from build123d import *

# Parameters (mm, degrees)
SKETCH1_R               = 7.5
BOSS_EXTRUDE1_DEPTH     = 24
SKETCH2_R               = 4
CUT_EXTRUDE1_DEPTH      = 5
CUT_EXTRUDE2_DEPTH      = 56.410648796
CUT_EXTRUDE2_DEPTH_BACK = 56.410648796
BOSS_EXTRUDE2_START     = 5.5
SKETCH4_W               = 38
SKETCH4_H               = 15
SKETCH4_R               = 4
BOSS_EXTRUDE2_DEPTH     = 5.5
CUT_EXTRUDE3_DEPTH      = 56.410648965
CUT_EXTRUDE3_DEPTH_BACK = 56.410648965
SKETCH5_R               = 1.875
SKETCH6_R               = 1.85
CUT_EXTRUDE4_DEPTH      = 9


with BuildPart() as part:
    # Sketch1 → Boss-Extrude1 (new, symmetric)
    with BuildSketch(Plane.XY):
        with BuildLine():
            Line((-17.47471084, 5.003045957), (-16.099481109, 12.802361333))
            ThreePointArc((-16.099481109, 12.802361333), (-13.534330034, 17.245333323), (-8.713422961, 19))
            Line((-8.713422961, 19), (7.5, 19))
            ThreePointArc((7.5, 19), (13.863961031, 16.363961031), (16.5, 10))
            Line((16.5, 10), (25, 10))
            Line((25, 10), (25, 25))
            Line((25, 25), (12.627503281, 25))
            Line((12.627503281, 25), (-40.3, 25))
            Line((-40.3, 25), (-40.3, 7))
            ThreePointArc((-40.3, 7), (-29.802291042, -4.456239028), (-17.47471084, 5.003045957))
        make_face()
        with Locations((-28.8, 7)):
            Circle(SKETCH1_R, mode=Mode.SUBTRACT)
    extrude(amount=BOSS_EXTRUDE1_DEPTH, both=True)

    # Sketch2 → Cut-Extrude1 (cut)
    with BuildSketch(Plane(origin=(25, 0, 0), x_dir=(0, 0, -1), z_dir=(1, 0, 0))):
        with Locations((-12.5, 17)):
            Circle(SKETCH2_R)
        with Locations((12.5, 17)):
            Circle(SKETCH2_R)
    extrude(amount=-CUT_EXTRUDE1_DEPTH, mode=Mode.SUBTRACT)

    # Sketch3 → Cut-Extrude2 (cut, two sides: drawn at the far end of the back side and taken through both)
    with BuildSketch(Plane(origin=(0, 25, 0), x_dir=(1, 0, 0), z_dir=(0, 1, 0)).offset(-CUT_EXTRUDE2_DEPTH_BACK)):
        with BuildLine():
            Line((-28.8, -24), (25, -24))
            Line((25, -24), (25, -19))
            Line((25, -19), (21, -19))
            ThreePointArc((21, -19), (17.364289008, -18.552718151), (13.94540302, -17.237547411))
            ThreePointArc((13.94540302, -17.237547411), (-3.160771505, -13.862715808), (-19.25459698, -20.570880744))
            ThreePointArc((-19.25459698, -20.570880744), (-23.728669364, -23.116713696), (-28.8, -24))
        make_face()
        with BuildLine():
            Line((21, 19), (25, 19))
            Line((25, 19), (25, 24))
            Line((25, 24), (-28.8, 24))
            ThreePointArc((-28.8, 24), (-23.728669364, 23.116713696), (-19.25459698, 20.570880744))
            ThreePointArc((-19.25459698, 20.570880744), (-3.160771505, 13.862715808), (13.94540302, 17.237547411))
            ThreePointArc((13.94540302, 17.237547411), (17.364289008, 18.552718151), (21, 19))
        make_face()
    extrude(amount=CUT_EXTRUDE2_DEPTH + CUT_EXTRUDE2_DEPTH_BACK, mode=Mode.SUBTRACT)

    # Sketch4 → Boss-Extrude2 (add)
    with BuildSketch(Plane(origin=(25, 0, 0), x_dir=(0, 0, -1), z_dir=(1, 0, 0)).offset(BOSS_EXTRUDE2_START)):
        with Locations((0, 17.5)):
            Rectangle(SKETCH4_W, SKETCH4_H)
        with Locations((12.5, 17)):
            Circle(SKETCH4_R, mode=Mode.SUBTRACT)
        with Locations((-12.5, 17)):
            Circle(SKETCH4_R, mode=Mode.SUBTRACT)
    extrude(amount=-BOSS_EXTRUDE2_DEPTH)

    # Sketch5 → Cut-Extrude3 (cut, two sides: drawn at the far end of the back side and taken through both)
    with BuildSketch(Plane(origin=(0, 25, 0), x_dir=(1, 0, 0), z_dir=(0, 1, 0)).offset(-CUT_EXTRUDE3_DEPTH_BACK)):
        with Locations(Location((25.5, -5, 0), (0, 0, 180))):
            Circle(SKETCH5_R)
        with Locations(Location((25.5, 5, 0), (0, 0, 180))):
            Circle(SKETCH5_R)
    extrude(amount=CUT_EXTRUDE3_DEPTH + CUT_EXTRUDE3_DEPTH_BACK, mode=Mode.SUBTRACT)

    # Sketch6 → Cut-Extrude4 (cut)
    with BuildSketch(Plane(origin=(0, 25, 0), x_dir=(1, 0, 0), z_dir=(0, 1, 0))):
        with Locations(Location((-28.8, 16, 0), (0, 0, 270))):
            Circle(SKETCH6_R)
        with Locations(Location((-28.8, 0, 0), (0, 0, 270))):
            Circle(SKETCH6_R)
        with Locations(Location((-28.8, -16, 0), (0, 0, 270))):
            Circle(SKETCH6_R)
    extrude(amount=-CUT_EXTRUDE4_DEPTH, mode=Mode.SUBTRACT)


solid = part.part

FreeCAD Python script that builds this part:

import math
import FreeCAD as App
import Part
import Sketcher

V = App.Vector
Q = App.Units.Quantity

doc = App.newDocument("Part")
body = doc.addObject("PartDesign::Body", "Body")

# Sketch on XY plane
sketch1 = doc.addObject("Sketcher::SketchObject", "Sketch")
body.addObject(sketch1)
sketch1.AttachmentSupport = (doc.XY_Plane, [""])
sketch1.MapMode = "FlatFace"
sketch1.addGeometry([
    Part.LineSegment(V(-17, 5, 0), V(-16, 13, 0)),  # 0
    Part.ArcOfCircle(Part.Circle(V(-9, 11, 0), V(0, 0, 1), 8), math.radians(90), math.radians(170)),  # 1
    Part.LineSegment(V(-9, 19, 0), V(8, 19, 0)),  # 2
    Part.ArcOfCircle(Part.Circle(V(8, 10, 0), V(0, 0, 1), 9), math.radians(0), math.radians(90)),  # 3
    Part.LineSegment(V(16, 10, 0), V(25, 10, 0)),  # 4
    Part.LineSegment(V(25, 10, 0), V(25, 25, 0)),  # 5
    Part.LineSegment(V(25, 25, 0), V(-40, 25, 0)),  # 6
    Part.LineSegment(V(-40, 25, 0), V(-40, 7, 0)),  # 7
    Part.ArcOfCircle(Part.Circle(V(-29, 7, 0), V(0, 0, 1), 12), math.radians(180), math.radians(350)),  # 8
    Part.Circle(V(-29, 7, 0), V(0, 0, 1), 8),  # 9
], False)
sketch1.addConstraint([
    Sketcher.Constraint("Tangent", 0, 2, 1, 2),
    Sketcher.Constraint("Tangent", 1, 1, 2, 1),
    Sketcher.Constraint("Tangent", 2, 2, 3, 2),
    Sketcher.Constraint("Coincident", 3, 1, 4, 1),
    Sketcher.Constraint("Coincident", 4, 2, 5, 1),
    Sketcher.Constraint("Coincident", 5, 2, 6, 1),
    Sketcher.Constraint("Coincident", 6, 2, 7, 1),
    Sketcher.Constraint("Tangent", 7, 2, 8, 1),
    Sketcher.Constraint("Tangent", 8, 2, 0, 1),
    Sketcher.Constraint("Horizontal", 2),
    Sketcher.Constraint("Horizontal", 4),
    Sketcher.Constraint("Vertical", 5),
    Sketcher.Constraint("Horizontal", 6),
    Sketcher.Constraint("Vertical", 7),
    Sketcher.Constraint("Coincident", 9, 3, 8, 3),
    Sketcher.Constraint("Equal", 1, 9),
    Sketcher.Constraint("Diameter", 9, Q("15 mm")),
    Sketcher.Constraint("Radius", 3, Q("9 mm")),
    Sketcher.Constraint("Radius", 8, Q("11.5 mm")),
    Sketcher.Constraint("DistanceY", 5, 1, 5, 2, Q("15 mm")),
    Sketcher.Constraint("DistanceY", 7, 2, 7, 1, Q("18 mm")),
    Sketcher.Constraint("Angle", 0, Q("80 deg")),
    Sketcher.Constraint("DistanceX", 4, 1, 4, 2, Q("8.5 mm")),
    Sketcher.Constraint("DistanceX", 6, 2, 6, 1, Q("65.3 mm")),
    Sketcher.Constraint("DistanceY", -1, 1, 3, 3, Q("10 mm")),
    Sketcher.Constraint("DistanceY", -1, 1, 8, 3, Q("7 mm")),
    Sketcher.Constraint("DistanceX", -1, 1, 4, 2, Q("25 mm")),
])
pad1 = doc.addObject("PartDesign::Pad", "Pad")
body.addObject(pad1)
pad1.Profile = sketch1
pad1.Length = 48
pad1.Midplane = True

# Sketch on YZ plane
sketch2 = doc.addObject("Sketcher::SketchObject", "Sketch001")
body.addObject(sketch2)
sketch2.AttachmentSupport = (doc.YZ_Plane, [""])
sketch2.MapMode = "FlatFace"
sketch2.AttachmentOffset = App.Placement(V(0, 0, 25), App.Rotation())
sketch2.addGeometry([
    Part.Circle(V(17, 12.5, 0), V(0, 0, 1), 4),
    Part.Circle(V(17, -12.5, 0), V(0, 0, 1), 4),
], False)
sketch2.addConstraint([
    Sketcher.Constraint("Equal", 0, 1),
    Sketcher.Constraint("Symmetric", 0, 3, 1, 3, -1),
    Sketcher.Constraint("Diameter", 0, Q("8 mm")),
    Sketcher.Constraint("DistanceX", -1, 1, 0, 3, Q("17 mm")),
    Sketcher.Constraint("DistanceY", 1, 3, 0, 3, Q("25 mm")),
])
pocket1 = doc.addObject("PartDesign::Pocket", "Pocket")
body.addObject(pocket1)
pocket1.Profile = sketch2
pocket1.Length = 5

# Sketch on XZ plane
sketch3 = doc.addObject("Sketcher::SketchObject", "Sketch002")
body.addObject(sketch3)
sketch3.AttachmentSupport = (doc.XZ_Plane, [""])
sketch3.MapMode = "FlatFace"
sketch3.AttachmentOffset = App.Placement(V(0, 0, -25), App.Rotation())
sketch3.addGeometry([
    Part.LineSegment(V(-28.8, 24, 0), V(25, 24, 0)),  # 0
    Part.LineSegment(V(25, 24, 0), V(25, 19, 0)),  # 1
    Part.LineSegment(V(25, 19, 0), V(21, 19, 0)),  # 2
    Part.ArcOfCircle(Part.Circle(V(21, 4, 0), V(0, 0, 1), 15), math.radians(90), math.radians(118)),  # 3
    Part.ArcOfCircle(Part.Circle(V(-0.2, 43.7, 0), V(0, 0, 1), 30), math.radians(-130), math.radians(-62)),  # 4
    Part.ArcOfCircle(Part.Circle(V(-28.8, 9, 0), V(0, 0, 1), 15), math.radians(50), math.radians(90)),  # 5
    Part.LineSegment(V(21, -19, 0), V(25, -19, 0)),  # 6
    Part.LineSegment(V(25, -19, 0), V(25, -24, 0)),  # 7
    Part.LineSegment(V(25, -24, 0), V(-28.8, -24, 0)),  # 8
    Part.ArcOfCircle(Part.Circle(V(-28.8, -9, 0), V(0, 0, 1), 15), math.radians(-90), math.radians(-50)),  # 9
    Part.ArcOfCircle(Part.Circle(V(-0.2, -43.7, 0), V(0, 0, 1), 30), math.radians(62), math.radians(130)),  # 10
    Part.ArcOfCircle(Part.Circle(V(21, -4, 0), V(0, 0, 1), 15), math.radians(-118), math.radians(-90)),  # 11
], False)
sketch3.addConstraint([
    Sketcher.Constraint("Coincident", 0, 2, 1, 1),
    Sketcher.Constraint("Coincident", 1, 2, 2, 1),
    Sketcher.Constraint("Tangent", 2, 2, 3, 1),
    Sketcher.Constraint("Tangent", 3, 2, 4, 2),
    Sketcher.Constraint("Tangent", 4, 1, 5, 1),
    Sketcher.Constraint("Tangent", 5, 2, 0, 1),
    Sketcher.Constraint("Coincident", 6, 2, 7, 1),
    Sketcher.Constraint("Coincident", 7, 2, 8, 1),
    Sketcher.Constraint("Tangent", 8, 2, 9, 1),
    Sketcher.Constraint("Tangent", 9, 2, 10, 2),
    Sketcher.Constraint("Tangent", 10, 1, 11, 1),
    Sketcher.Constraint("Tangent", 11, 2, 6, 1),
    Sketcher.Constraint("Horizontal", 0),
    Sketcher.Constraint("Vertical", 1),
    Sketcher.Constraint("Horizontal", 2),
    Sketcher.Constraint("Horizontal", 6),
    Sketcher.Constraint("Vertical", 7),
    Sketcher.Constraint("Horizontal", 8),
    Sketcher.Constraint("Equal", 3, 5),
    Sketcher.Constraint("Equal", 5, 9),
    Sketcher.Constraint("Equal", 4, 10),
    Sketcher.Constraint("Equal", 9, 11),
    Sketcher.Constraint("Symmetric", 5, 3, 9, 3, -1),
    Sketcher.Constraint("Symmetric", 3, 3, 11, 3, -1),
    Sketcher.Constraint("Vertical", 1, 2, 6, 2),
    Sketcher.Constraint("Radius", 3, Q("15 mm")),
    Sketcher.Constraint("Radius", 4, Q("30 mm")),
    Sketcher.Constraint("DistanceX", 2, 2, 2, 1, Q("4 mm")),
    Sketcher.Constraint("DistanceY", 1, 2, 1, 1, Q("5 mm")),
    Sketcher.Constraint("DistanceX", 0, 1, 0, 2, Q("53.8 mm")),
    Sketcher.Constraint("DistanceX", -1, 1, 3, 3, Q("21 mm")),
    Sketcher.Constraint("DistanceY", -1, 1, 3, 3, Q("4 mm")),
])
pocket2 = doc.addObject("PartDesign::Pocket", "Pocket001")
body.addObject(pocket2)
pocket2.Profile = sketch3
pocket2.Type = "ThroughAll"
pocket2.Midplane = True

# Sketch on YZ plane
sketch4 = doc.addObject("Sketcher::SketchObject", "Sketch003")
body.addObject(sketch4)
sketch4.AttachmentSupport = (doc.YZ_Plane, [""])
sketch4.MapMode = "FlatFace"
sketch4.AttachmentOffset = App.Placement(V(0, 0, 30.5), App.Rotation())
sketch4.addGeometry([
    Part.LineSegment(V(25, 19, 0), V(10, 19, 0)),  # 0
    Part.LineSegment(V(10, 19, 0), V(10, -19, 0)),  # 1
    Part.LineSegment(V(10, -19, 0), V(25, -19, 0)),  # 2
    Part.LineSegment(V(25, -19, 0), V(25, 19, 0)),  # 3
    Part.Circle(V(17, 12.5, 0), V(0, 0, 1), 4),  # 4
    Part.Circle(V(17, -12.5, 0), V(0, 0, 1), 4),  # 5
], False)
sketch4.addConstraint([
    Sketcher.Constraint("Coincident", 0, 2, 1, 1),
    Sketcher.Constraint("Coincident", 1, 2, 2, 1),
    Sketcher.Constraint("Coincident", 2, 2, 3, 1),
    Sketcher.Constraint("Coincident", 3, 2, 0, 1),
    Sketcher.Constraint("Horizontal", 0),
    Sketcher.Constraint("Vertical", 1),
    Sketcher.Constraint("Horizontal", 2),
    Sketcher.Constraint("Vertical", 3),
    Sketcher.Constraint("Equal", 4, 5),
    Sketcher.Constraint("Symmetric", 4, 3, 5, 3, -1),
    Sketcher.Constraint("Diameter", 4, Q("8 mm")),
    Sketcher.Constraint("DistanceX", 0, 2, 0, 1, Q("15 mm")),
    Sketcher.Constraint("DistanceY", 1, 2, 1, 1, Q("38 mm")),
    Sketcher.Constraint("DistanceX", -1, 1, 4, 3, Q("17 mm")),
    Sketcher.Constraint("DistanceX", -1, 1, 0, 2, Q("10 mm")),
    Sketcher.Constraint("DistanceY", -1, 1, 0, 2, Q("19 mm")),
    Sketcher.Constraint("DistanceY", 5, 3, 4, 3, Q("25 mm")),
])
pad2 = doc.addObject("PartDesign::Pad", "Pad001")
body.addObject(pad2)
pad2.Profile = sketch4
pad2.Length = 5.5
pad2.Reversed = True

# Sketch on XZ plane
sketch5 = doc.addObject("Sketcher::SketchObject", "Sketch004")
body.addObject(sketch5)
sketch5.AttachmentSupport = (doc.XZ_Plane, [""])
sketch5.MapMode = "FlatFace"
sketch5.AttachmentOffset = App.Placement(V(0, 0, -25), App.Rotation())
sketch5.addGeometry([
    Part.Circle(V(25.5, 5, 0), V(0, 0, 1), 1.9),
    Part.Circle(V(25.5, -5, 0), V(0, 0, 1), 1.9),
], False)
sketch5.addConstraint([
    Sketcher.Constraint("Equal", 0, 1),
    Sketcher.Constraint("Symmetric", 0, 3, 1, 3, -1),
    Sketcher.Constraint("Diameter", 0, Q("3.75 mm")),
    Sketcher.Constraint("DistanceY", -1, 1, 0, 3, Q("5 mm")),
    Sketcher.Constraint("DistanceX", -1, 1, 0, 3, Q("25.5 mm")),
])
pocket3 = doc.addObject("PartDesign::Pocket", "Pocket002")
body.addObject(pocket3)
pocket3.Profile = sketch5
pocket3.Type = "ThroughAll"
pocket3.Midplane = True

# Sketch on XZ plane
sketch6 = doc.addObject("Sketcher::SketchObject", "Sketch005")
body.addObject(sketch6)
sketch6.AttachmentSupport = (doc.XZ_Plane, [""])
sketch6.MapMode = "FlatFace"
sketch6.AttachmentOffset = App.Placement(V(0, 0, -25), App.Rotation())
sketch6.addGeometry([
    Part.Circle(V(-28.8, -16, 0), V(0, 0, 1), 1.9),
    Part.Circle(V(-28.8, 0, 0), V(0, 0, 1), 1.9),
    Part.Circle(V(-28.8, 16, 0), V(0, 0, 1), 1.9),
], False)
sketch6.addConstraint([
    Sketcher.Constraint("Equal", 0, 1),
    Sketcher.Constraint("Equal", 1, 2),
    Sketcher.Constraint("Symmetric", 0, 3, 2, 3, -1),
    Sketcher.Constraint("PointOnObject", 1, 3, -1),
    Sketcher.Constraint("Vertical", 0, 3, 1, 3),
    Sketcher.Constraint("Diameter", 0, Q("3.7 mm")),
    Sketcher.Constraint("DistanceY", 0, 3, -1, 1, Q("16 mm")),
    Sketcher.Constraint("DistanceX", 0, 3, -1, 1, Q("28.8 mm")),
])
pocket4 = doc.addObject("PartDesign::Pocket", "Pocket003")
body.addObject(pocket4)
pocket4.Profile = sketch6
pocket4.Length = 9
pocket4.Reversed = True

doc.recompute()
